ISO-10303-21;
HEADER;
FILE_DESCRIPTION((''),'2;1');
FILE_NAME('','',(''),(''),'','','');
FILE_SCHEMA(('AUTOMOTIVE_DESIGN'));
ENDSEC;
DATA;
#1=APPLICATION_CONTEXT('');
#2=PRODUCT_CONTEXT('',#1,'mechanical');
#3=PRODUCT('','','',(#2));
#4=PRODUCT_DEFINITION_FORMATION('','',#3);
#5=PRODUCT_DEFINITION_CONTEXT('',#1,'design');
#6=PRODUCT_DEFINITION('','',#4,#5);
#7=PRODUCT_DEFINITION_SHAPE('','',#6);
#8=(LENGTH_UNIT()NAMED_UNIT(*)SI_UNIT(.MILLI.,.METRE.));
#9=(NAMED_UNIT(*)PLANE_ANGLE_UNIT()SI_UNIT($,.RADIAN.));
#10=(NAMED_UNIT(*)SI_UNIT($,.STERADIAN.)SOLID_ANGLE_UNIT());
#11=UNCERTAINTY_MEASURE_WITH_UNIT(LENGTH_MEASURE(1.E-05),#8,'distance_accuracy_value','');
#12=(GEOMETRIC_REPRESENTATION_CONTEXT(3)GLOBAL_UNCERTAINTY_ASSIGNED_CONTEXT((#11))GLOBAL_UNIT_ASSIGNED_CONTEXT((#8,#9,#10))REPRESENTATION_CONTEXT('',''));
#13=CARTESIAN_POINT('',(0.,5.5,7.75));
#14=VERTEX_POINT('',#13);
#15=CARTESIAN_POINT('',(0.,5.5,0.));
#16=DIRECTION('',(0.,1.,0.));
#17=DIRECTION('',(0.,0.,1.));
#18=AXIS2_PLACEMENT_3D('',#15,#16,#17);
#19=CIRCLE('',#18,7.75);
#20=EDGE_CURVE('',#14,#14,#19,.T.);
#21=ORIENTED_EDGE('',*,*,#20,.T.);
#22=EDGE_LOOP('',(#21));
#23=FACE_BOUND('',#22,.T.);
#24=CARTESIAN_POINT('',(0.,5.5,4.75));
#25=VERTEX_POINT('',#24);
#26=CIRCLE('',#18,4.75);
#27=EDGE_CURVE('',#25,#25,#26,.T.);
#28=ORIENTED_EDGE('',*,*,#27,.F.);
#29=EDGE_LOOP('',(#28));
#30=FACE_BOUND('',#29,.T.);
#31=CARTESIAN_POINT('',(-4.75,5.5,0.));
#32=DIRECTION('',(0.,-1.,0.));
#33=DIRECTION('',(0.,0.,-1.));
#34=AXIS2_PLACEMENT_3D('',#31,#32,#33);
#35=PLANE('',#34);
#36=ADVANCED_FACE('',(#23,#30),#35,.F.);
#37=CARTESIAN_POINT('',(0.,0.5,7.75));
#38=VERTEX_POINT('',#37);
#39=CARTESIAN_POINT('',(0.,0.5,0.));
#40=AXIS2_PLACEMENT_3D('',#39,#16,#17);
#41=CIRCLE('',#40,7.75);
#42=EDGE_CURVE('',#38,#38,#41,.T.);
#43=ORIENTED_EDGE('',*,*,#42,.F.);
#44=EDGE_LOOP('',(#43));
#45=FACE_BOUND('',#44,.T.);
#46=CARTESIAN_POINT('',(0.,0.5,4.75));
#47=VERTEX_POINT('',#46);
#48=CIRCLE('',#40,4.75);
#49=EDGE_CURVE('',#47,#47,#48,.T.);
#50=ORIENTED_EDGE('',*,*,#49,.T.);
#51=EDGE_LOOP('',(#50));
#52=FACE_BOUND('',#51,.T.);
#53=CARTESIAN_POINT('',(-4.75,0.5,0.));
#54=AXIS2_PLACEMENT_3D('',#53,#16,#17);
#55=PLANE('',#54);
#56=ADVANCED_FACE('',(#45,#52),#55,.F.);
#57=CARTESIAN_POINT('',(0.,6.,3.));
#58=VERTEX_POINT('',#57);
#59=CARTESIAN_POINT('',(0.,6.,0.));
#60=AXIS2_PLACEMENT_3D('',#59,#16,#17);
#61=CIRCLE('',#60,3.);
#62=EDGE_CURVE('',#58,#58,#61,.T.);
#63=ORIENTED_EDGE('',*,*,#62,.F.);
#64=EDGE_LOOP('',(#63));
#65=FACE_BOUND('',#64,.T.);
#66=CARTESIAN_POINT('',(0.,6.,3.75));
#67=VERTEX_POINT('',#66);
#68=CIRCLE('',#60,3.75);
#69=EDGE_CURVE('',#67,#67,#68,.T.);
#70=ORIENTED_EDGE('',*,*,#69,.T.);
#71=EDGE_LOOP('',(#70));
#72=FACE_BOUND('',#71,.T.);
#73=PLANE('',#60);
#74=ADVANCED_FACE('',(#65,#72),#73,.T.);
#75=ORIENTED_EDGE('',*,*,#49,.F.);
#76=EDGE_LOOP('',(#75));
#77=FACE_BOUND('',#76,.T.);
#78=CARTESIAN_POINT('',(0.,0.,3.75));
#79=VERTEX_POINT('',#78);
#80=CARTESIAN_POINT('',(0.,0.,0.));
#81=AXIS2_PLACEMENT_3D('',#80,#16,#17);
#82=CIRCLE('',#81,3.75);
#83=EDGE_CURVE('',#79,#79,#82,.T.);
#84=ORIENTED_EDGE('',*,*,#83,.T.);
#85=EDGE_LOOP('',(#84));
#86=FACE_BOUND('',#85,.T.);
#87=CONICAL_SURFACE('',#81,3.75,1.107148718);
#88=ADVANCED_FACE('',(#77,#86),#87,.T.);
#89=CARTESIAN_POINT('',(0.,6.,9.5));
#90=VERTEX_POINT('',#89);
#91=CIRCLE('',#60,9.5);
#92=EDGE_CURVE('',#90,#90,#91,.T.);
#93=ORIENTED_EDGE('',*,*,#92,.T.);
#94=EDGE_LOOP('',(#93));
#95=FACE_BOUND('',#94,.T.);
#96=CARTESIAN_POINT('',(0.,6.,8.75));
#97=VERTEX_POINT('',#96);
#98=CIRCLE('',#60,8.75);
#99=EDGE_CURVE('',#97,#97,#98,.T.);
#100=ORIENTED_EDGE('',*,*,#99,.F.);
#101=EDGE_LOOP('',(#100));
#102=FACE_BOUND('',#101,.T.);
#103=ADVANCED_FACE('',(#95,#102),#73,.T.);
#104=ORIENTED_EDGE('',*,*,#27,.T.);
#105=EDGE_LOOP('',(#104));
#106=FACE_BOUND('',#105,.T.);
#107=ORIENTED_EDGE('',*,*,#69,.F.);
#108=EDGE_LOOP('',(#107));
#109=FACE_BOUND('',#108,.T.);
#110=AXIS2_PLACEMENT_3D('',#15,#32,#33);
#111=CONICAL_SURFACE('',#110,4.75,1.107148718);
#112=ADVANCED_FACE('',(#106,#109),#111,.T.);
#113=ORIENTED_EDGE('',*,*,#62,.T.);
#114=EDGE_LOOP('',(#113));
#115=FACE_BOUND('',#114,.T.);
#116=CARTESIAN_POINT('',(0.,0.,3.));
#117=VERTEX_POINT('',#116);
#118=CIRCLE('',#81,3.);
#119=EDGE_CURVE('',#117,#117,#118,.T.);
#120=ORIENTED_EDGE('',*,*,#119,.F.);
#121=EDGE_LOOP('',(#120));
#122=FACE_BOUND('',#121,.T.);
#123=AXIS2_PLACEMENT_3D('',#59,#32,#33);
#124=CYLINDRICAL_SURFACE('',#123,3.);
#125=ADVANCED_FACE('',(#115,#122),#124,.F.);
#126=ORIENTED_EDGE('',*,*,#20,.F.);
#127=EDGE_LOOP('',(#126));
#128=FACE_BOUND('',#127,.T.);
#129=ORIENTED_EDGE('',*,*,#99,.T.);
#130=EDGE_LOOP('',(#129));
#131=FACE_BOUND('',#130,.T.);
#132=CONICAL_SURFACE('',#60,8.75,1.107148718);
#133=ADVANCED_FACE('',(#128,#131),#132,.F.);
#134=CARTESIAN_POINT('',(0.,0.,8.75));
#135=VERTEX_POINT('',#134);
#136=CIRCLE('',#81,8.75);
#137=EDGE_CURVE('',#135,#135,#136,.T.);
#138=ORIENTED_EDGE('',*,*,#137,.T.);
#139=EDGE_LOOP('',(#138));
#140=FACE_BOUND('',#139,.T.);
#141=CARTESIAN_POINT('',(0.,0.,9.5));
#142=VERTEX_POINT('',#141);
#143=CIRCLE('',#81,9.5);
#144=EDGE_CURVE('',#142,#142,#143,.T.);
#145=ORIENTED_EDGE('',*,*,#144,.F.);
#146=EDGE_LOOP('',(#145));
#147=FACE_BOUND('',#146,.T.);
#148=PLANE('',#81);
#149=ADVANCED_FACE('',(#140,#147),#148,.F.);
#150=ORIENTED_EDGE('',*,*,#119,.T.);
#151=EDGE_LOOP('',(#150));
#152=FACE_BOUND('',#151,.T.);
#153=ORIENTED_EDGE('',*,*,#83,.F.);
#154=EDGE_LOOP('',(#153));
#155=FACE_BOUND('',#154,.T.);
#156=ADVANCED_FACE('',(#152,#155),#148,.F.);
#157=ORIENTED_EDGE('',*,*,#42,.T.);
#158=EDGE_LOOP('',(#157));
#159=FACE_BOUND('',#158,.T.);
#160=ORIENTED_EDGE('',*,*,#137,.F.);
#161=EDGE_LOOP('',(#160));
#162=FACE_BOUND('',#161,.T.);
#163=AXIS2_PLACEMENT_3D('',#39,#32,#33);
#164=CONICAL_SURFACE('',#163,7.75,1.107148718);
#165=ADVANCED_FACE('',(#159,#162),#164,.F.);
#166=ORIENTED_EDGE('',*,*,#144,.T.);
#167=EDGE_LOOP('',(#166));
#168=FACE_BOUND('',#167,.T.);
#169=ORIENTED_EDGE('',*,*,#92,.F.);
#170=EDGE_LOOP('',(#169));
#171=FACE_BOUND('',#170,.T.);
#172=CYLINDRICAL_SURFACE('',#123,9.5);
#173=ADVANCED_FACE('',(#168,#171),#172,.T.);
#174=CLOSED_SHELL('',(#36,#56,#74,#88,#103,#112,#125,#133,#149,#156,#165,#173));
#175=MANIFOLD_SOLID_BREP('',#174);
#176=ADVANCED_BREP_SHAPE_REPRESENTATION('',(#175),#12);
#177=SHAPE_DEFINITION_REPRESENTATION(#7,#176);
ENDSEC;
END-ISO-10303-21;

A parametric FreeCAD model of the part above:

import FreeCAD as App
import Part
import Sketcher

V = App.Vector
Q = App.Units.Quantity


def add_polygon(sketch, points):
    """Adds a closed chain of lines whose ends are joined by coincident constraints."""
    first, n = sketch.GeometryCount, len(points)
    for a, b in zip(points, points[1:] + points[:1]):
        sketch.addGeometry(Part.LineSegment(App.Vector(*a, 0), App.Vector(*b, 0)), False)
    for i in range(n):
        sketch.addConstraint(Sketcher.Constraint("Coincident", first + i, 2, first + (i + 1) % n, 1))

doc = App.newDocument("Part")
params = doc.addObject("Spreadsheet::Sheet", "Params")
for row, (alias, value) in enumerate([
    ("sketch1_diameter", "19 mm"),
    ("sketch1_diameter2", "6 mm"),
    ("pad1_length", "6 mm"),
    ("sketch2_width", "5 mm"),
    ("sketch2_width2", "3 mm"),
    ("groove_angle", "360 deg"),
], start=1):
    params.set(f"A{row}", alias)
    params.set(f"B{row}", "=" + value)
    params.setAlias(f"B{row}", alias)

body = doc.addObject("PartDesign::Body", "Body")

# Sketch on XZ plane
sketch1 = body.newObject("Sketcher::SketchObject", "Sketch")
sketch1.AttachmentSupport = (doc.getObject("XZ_Plane"), [""])
sketch1.MapMode = "FlatFace"
sketch1.addGeometry([
    Part.Circle(V(0, 0, 0), V(0, 0, 1), 9.5),
    Part.Circle(V(0, 0, 0), V(0, 0, 1), 3),
], False)
sketch1.addConstraint([
    Sketcher.Constraint("Coincident", 0, 3, -1, 1),
    Sketcher.Constraint("Coincident", 1, 3, -1, 1),
    Sketcher.Constraint("Diameter", 0, Q("19 mm")),
    Sketcher.Constraint("Diameter", 1, Q("6 mm")),
])
sketch1.setExpression("Constraints[2]", "Params.sketch1_diameter")
sketch1.setExpression("Constraints[3]", "Params.sketch1_diameter2")
pad1 = body.newObject("PartDesign::Pad", "Pad")
pad1.Profile = sketch1
pad1.setExpression("Length", "Params.pad1_length")
pad1.Reversed = True

# Sketch on XY plane
sketch2 = body.newObject("Sketcher::SketchObject", "Sketch001")
sketch2.AttachmentSupport = (doc.getObject("XY_Plane"), [""])
sketch2.MapMode = "FlatFace"
add_polygon(sketch2, [(-4.8, 5.5), (-3.8, 6), (-8.8, 6), (-7.8, 5.5)])  # lines 0-3
add_polygon(sketch2, [(-8.8, 0), (-3.8, 0), (-4.8, 0.5), (-7.8, 0.5)])  # lines 4-7
sketch2.addConstraint([
    Sketcher.Constraint("Horizontal", 1),
    Sketcher.Constraint("Horizontal", 3),
    Sketcher.Constraint("Horizontal", 4),
    Sketcher.Constraint("Horizontal", 6),
    Sketcher.Constraint("PointOnObject", 4, 2, -1),
    Sketcher.Constraint("Parallel", 2, 5),
    Sketcher.Constraint("Parallel", 0, 7),
    Sketcher.Constraint("Vertical", 0, 2, 4, 2),
    Sketcher.Constraint("Vertical", 3, 2, 5, 2),
    Sketcher.Constraint("Vertical", 2, 2, 6, 2),
    Sketcher.Constraint("Vertical", 1, 2, 7, 2),
    Sketcher.Constraint("DistanceX", 1, 2, 1, 1, Q("5 mm")),
    Sketcher.Constraint("DistanceX", 3, 1, 3, 2, Q("3 mm")),
    Sketcher.Constraint("DistanceY", -1, 1, 0, 2, Q("6 mm")),
    Sketcher.Constraint("DistanceY", 5, 2, 3, 2, Q("5 mm")),
    Sketcher.Constraint("DistanceX", 0, 2, -1, 1, Q("3.75 mm")),
])
sketch2.setExpression("Constraints[19]", "Params.sketch2_width")
sketch2.setExpression("Constraints[20]", "Params.sketch2_width2")
groove = body.newObject("PartDesign::Groove", "Groove")
groove.Profile = sketch2
groove.ReferenceAxis = (sketch2, ["V_Axis"])
groove.setExpression("Angle", "Params.groove_angle")

doc.recompute()
